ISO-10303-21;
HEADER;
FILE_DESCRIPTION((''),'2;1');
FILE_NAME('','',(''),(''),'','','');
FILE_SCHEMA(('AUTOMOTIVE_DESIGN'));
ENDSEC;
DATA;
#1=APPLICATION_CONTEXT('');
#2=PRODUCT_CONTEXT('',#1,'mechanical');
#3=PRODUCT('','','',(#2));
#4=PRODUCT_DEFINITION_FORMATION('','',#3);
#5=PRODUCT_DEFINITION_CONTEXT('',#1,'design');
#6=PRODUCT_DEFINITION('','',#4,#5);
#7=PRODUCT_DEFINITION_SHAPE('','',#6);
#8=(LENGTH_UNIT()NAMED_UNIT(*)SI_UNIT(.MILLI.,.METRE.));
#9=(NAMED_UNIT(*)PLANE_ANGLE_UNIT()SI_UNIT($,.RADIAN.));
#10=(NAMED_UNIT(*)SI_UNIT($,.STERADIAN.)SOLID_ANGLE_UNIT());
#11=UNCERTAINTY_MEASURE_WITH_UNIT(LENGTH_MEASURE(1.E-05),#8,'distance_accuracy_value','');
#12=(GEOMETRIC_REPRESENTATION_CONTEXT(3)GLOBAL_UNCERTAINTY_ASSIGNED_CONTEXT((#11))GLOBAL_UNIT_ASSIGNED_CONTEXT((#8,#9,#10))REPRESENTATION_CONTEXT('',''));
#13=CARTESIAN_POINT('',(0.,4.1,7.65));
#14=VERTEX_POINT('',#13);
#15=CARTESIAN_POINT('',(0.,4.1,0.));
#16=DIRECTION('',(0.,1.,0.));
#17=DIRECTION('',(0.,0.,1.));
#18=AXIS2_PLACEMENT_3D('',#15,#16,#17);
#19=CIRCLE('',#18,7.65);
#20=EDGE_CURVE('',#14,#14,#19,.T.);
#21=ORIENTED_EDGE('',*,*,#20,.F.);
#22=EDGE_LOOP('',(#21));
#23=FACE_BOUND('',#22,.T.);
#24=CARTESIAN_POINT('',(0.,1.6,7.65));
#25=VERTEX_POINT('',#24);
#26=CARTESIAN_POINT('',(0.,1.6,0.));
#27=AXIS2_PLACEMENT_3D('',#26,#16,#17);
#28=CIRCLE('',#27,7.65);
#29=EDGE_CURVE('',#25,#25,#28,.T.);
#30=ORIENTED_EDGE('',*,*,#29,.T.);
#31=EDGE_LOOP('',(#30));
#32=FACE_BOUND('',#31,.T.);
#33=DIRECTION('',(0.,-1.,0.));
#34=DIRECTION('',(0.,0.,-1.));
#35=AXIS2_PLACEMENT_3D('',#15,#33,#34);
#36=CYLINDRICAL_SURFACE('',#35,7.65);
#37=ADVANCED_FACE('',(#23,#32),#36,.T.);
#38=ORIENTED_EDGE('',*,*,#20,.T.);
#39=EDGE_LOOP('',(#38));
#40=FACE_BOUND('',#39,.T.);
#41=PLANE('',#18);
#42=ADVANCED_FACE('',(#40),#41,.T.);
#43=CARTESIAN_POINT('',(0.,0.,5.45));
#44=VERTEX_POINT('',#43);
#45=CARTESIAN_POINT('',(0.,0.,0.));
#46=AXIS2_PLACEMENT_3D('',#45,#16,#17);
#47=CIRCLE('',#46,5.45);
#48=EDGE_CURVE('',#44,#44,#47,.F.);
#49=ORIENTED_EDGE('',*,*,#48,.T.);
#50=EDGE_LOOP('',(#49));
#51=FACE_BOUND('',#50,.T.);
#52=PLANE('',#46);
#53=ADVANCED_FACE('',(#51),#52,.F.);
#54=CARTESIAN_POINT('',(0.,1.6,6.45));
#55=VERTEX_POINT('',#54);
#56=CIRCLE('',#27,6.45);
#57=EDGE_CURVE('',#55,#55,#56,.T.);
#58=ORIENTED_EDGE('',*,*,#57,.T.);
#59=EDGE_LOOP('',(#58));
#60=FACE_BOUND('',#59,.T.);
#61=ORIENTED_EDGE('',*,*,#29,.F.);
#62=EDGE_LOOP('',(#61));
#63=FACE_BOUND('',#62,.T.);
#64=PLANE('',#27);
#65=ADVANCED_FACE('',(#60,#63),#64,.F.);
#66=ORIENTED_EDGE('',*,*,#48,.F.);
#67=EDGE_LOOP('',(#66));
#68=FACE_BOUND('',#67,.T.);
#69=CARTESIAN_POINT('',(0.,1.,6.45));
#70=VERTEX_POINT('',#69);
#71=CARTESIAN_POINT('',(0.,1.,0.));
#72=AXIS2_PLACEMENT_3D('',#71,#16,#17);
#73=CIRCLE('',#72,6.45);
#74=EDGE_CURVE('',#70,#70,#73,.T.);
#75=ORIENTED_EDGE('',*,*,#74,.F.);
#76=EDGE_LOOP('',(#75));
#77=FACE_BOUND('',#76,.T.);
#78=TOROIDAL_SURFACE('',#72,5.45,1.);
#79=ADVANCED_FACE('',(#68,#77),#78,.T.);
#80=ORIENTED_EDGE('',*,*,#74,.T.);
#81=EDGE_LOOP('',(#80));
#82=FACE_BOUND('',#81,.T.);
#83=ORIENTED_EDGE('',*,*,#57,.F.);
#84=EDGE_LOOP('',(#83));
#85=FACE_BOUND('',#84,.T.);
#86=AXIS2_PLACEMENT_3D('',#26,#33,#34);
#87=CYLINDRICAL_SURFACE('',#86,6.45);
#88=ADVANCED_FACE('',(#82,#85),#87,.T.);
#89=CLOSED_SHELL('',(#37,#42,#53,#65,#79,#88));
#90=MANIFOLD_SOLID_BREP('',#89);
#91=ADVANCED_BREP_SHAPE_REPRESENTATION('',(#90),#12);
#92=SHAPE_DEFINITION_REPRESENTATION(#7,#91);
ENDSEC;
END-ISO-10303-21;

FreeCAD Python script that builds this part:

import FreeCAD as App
import Part
import Sketcher


def edges_at(feature, points):
    """Names of the edges that pass closest to the given points."""
    edges = feature.Shape.Edges
    near = lambda p: min(range(len(edges)), key=lambda i: edges[i].distToShape(Part.Vertex(*p))[0])
    return sorted({f"Edge{near(p) + 1}" for p in points})

doc = App.newDocument("Part")
body = doc.addObject("PartDesign::Body", "Body")

# Sketch on XZ plane
sketch1 = body.newObject("Sketcher::SketchObject", "Sketch")
sketch1.AttachmentSupport = (doc.getObject("XZ_Plane"), [""])
sketch1.MapMode = "FlatFace"
sketch1.addGeometry(Part.Circle(App.Vector(0, 0, 0), App.Vector(0, 0, 1), 6), False)
sketch1.addConstraint([
    Sketcher.Constraint("Coincident", 0, 3, -1, 1),
    Sketcher.Constraint("Diameter", 0, 12.9),
])
pad1 = body.newObject("PartDesign::Pad", "Pad")
pad1.Profile = sketch1
pad1.Length = 1.6
pad1.Reversed = True

# Sketch on XZ plane
sketch2 = body.newObject("Sketcher::SketchObject", "Sketch001")
sketch2.AttachmentSupport = (doc.getObject("XZ_Plane"), [""])
sketch2.MapMode = "FlatFace"
sketch2.AttachmentOffset = App.Placement(App.Vector(0, 0, -1.6), App.Rotation())
sketch2.addGeometry(Part.Circle(App.Vector(0, 0, 0), App.Vector(0, 0, 1), 8), False)
sketch2.addConstraint([
    Sketcher.Constraint("Coincident", 0, 3, -1, 1),
    Sketcher.Constraint("Diameter", 0, 15.3),
])
pad2 = body.newObject("PartDesign::Pad", "Pad001")
pad2.Profile = sketch2
pad2.Length = 2.5
pad2.Reversed = True
doc.recompute()

fillet = body.newObject("PartDesign::Fillet", "Fillet")
fillet.Base = (pad2, edges_at(pad2, [(0, 0, -6.45)]))
fillet.Radius = 1

doc.recompute()
